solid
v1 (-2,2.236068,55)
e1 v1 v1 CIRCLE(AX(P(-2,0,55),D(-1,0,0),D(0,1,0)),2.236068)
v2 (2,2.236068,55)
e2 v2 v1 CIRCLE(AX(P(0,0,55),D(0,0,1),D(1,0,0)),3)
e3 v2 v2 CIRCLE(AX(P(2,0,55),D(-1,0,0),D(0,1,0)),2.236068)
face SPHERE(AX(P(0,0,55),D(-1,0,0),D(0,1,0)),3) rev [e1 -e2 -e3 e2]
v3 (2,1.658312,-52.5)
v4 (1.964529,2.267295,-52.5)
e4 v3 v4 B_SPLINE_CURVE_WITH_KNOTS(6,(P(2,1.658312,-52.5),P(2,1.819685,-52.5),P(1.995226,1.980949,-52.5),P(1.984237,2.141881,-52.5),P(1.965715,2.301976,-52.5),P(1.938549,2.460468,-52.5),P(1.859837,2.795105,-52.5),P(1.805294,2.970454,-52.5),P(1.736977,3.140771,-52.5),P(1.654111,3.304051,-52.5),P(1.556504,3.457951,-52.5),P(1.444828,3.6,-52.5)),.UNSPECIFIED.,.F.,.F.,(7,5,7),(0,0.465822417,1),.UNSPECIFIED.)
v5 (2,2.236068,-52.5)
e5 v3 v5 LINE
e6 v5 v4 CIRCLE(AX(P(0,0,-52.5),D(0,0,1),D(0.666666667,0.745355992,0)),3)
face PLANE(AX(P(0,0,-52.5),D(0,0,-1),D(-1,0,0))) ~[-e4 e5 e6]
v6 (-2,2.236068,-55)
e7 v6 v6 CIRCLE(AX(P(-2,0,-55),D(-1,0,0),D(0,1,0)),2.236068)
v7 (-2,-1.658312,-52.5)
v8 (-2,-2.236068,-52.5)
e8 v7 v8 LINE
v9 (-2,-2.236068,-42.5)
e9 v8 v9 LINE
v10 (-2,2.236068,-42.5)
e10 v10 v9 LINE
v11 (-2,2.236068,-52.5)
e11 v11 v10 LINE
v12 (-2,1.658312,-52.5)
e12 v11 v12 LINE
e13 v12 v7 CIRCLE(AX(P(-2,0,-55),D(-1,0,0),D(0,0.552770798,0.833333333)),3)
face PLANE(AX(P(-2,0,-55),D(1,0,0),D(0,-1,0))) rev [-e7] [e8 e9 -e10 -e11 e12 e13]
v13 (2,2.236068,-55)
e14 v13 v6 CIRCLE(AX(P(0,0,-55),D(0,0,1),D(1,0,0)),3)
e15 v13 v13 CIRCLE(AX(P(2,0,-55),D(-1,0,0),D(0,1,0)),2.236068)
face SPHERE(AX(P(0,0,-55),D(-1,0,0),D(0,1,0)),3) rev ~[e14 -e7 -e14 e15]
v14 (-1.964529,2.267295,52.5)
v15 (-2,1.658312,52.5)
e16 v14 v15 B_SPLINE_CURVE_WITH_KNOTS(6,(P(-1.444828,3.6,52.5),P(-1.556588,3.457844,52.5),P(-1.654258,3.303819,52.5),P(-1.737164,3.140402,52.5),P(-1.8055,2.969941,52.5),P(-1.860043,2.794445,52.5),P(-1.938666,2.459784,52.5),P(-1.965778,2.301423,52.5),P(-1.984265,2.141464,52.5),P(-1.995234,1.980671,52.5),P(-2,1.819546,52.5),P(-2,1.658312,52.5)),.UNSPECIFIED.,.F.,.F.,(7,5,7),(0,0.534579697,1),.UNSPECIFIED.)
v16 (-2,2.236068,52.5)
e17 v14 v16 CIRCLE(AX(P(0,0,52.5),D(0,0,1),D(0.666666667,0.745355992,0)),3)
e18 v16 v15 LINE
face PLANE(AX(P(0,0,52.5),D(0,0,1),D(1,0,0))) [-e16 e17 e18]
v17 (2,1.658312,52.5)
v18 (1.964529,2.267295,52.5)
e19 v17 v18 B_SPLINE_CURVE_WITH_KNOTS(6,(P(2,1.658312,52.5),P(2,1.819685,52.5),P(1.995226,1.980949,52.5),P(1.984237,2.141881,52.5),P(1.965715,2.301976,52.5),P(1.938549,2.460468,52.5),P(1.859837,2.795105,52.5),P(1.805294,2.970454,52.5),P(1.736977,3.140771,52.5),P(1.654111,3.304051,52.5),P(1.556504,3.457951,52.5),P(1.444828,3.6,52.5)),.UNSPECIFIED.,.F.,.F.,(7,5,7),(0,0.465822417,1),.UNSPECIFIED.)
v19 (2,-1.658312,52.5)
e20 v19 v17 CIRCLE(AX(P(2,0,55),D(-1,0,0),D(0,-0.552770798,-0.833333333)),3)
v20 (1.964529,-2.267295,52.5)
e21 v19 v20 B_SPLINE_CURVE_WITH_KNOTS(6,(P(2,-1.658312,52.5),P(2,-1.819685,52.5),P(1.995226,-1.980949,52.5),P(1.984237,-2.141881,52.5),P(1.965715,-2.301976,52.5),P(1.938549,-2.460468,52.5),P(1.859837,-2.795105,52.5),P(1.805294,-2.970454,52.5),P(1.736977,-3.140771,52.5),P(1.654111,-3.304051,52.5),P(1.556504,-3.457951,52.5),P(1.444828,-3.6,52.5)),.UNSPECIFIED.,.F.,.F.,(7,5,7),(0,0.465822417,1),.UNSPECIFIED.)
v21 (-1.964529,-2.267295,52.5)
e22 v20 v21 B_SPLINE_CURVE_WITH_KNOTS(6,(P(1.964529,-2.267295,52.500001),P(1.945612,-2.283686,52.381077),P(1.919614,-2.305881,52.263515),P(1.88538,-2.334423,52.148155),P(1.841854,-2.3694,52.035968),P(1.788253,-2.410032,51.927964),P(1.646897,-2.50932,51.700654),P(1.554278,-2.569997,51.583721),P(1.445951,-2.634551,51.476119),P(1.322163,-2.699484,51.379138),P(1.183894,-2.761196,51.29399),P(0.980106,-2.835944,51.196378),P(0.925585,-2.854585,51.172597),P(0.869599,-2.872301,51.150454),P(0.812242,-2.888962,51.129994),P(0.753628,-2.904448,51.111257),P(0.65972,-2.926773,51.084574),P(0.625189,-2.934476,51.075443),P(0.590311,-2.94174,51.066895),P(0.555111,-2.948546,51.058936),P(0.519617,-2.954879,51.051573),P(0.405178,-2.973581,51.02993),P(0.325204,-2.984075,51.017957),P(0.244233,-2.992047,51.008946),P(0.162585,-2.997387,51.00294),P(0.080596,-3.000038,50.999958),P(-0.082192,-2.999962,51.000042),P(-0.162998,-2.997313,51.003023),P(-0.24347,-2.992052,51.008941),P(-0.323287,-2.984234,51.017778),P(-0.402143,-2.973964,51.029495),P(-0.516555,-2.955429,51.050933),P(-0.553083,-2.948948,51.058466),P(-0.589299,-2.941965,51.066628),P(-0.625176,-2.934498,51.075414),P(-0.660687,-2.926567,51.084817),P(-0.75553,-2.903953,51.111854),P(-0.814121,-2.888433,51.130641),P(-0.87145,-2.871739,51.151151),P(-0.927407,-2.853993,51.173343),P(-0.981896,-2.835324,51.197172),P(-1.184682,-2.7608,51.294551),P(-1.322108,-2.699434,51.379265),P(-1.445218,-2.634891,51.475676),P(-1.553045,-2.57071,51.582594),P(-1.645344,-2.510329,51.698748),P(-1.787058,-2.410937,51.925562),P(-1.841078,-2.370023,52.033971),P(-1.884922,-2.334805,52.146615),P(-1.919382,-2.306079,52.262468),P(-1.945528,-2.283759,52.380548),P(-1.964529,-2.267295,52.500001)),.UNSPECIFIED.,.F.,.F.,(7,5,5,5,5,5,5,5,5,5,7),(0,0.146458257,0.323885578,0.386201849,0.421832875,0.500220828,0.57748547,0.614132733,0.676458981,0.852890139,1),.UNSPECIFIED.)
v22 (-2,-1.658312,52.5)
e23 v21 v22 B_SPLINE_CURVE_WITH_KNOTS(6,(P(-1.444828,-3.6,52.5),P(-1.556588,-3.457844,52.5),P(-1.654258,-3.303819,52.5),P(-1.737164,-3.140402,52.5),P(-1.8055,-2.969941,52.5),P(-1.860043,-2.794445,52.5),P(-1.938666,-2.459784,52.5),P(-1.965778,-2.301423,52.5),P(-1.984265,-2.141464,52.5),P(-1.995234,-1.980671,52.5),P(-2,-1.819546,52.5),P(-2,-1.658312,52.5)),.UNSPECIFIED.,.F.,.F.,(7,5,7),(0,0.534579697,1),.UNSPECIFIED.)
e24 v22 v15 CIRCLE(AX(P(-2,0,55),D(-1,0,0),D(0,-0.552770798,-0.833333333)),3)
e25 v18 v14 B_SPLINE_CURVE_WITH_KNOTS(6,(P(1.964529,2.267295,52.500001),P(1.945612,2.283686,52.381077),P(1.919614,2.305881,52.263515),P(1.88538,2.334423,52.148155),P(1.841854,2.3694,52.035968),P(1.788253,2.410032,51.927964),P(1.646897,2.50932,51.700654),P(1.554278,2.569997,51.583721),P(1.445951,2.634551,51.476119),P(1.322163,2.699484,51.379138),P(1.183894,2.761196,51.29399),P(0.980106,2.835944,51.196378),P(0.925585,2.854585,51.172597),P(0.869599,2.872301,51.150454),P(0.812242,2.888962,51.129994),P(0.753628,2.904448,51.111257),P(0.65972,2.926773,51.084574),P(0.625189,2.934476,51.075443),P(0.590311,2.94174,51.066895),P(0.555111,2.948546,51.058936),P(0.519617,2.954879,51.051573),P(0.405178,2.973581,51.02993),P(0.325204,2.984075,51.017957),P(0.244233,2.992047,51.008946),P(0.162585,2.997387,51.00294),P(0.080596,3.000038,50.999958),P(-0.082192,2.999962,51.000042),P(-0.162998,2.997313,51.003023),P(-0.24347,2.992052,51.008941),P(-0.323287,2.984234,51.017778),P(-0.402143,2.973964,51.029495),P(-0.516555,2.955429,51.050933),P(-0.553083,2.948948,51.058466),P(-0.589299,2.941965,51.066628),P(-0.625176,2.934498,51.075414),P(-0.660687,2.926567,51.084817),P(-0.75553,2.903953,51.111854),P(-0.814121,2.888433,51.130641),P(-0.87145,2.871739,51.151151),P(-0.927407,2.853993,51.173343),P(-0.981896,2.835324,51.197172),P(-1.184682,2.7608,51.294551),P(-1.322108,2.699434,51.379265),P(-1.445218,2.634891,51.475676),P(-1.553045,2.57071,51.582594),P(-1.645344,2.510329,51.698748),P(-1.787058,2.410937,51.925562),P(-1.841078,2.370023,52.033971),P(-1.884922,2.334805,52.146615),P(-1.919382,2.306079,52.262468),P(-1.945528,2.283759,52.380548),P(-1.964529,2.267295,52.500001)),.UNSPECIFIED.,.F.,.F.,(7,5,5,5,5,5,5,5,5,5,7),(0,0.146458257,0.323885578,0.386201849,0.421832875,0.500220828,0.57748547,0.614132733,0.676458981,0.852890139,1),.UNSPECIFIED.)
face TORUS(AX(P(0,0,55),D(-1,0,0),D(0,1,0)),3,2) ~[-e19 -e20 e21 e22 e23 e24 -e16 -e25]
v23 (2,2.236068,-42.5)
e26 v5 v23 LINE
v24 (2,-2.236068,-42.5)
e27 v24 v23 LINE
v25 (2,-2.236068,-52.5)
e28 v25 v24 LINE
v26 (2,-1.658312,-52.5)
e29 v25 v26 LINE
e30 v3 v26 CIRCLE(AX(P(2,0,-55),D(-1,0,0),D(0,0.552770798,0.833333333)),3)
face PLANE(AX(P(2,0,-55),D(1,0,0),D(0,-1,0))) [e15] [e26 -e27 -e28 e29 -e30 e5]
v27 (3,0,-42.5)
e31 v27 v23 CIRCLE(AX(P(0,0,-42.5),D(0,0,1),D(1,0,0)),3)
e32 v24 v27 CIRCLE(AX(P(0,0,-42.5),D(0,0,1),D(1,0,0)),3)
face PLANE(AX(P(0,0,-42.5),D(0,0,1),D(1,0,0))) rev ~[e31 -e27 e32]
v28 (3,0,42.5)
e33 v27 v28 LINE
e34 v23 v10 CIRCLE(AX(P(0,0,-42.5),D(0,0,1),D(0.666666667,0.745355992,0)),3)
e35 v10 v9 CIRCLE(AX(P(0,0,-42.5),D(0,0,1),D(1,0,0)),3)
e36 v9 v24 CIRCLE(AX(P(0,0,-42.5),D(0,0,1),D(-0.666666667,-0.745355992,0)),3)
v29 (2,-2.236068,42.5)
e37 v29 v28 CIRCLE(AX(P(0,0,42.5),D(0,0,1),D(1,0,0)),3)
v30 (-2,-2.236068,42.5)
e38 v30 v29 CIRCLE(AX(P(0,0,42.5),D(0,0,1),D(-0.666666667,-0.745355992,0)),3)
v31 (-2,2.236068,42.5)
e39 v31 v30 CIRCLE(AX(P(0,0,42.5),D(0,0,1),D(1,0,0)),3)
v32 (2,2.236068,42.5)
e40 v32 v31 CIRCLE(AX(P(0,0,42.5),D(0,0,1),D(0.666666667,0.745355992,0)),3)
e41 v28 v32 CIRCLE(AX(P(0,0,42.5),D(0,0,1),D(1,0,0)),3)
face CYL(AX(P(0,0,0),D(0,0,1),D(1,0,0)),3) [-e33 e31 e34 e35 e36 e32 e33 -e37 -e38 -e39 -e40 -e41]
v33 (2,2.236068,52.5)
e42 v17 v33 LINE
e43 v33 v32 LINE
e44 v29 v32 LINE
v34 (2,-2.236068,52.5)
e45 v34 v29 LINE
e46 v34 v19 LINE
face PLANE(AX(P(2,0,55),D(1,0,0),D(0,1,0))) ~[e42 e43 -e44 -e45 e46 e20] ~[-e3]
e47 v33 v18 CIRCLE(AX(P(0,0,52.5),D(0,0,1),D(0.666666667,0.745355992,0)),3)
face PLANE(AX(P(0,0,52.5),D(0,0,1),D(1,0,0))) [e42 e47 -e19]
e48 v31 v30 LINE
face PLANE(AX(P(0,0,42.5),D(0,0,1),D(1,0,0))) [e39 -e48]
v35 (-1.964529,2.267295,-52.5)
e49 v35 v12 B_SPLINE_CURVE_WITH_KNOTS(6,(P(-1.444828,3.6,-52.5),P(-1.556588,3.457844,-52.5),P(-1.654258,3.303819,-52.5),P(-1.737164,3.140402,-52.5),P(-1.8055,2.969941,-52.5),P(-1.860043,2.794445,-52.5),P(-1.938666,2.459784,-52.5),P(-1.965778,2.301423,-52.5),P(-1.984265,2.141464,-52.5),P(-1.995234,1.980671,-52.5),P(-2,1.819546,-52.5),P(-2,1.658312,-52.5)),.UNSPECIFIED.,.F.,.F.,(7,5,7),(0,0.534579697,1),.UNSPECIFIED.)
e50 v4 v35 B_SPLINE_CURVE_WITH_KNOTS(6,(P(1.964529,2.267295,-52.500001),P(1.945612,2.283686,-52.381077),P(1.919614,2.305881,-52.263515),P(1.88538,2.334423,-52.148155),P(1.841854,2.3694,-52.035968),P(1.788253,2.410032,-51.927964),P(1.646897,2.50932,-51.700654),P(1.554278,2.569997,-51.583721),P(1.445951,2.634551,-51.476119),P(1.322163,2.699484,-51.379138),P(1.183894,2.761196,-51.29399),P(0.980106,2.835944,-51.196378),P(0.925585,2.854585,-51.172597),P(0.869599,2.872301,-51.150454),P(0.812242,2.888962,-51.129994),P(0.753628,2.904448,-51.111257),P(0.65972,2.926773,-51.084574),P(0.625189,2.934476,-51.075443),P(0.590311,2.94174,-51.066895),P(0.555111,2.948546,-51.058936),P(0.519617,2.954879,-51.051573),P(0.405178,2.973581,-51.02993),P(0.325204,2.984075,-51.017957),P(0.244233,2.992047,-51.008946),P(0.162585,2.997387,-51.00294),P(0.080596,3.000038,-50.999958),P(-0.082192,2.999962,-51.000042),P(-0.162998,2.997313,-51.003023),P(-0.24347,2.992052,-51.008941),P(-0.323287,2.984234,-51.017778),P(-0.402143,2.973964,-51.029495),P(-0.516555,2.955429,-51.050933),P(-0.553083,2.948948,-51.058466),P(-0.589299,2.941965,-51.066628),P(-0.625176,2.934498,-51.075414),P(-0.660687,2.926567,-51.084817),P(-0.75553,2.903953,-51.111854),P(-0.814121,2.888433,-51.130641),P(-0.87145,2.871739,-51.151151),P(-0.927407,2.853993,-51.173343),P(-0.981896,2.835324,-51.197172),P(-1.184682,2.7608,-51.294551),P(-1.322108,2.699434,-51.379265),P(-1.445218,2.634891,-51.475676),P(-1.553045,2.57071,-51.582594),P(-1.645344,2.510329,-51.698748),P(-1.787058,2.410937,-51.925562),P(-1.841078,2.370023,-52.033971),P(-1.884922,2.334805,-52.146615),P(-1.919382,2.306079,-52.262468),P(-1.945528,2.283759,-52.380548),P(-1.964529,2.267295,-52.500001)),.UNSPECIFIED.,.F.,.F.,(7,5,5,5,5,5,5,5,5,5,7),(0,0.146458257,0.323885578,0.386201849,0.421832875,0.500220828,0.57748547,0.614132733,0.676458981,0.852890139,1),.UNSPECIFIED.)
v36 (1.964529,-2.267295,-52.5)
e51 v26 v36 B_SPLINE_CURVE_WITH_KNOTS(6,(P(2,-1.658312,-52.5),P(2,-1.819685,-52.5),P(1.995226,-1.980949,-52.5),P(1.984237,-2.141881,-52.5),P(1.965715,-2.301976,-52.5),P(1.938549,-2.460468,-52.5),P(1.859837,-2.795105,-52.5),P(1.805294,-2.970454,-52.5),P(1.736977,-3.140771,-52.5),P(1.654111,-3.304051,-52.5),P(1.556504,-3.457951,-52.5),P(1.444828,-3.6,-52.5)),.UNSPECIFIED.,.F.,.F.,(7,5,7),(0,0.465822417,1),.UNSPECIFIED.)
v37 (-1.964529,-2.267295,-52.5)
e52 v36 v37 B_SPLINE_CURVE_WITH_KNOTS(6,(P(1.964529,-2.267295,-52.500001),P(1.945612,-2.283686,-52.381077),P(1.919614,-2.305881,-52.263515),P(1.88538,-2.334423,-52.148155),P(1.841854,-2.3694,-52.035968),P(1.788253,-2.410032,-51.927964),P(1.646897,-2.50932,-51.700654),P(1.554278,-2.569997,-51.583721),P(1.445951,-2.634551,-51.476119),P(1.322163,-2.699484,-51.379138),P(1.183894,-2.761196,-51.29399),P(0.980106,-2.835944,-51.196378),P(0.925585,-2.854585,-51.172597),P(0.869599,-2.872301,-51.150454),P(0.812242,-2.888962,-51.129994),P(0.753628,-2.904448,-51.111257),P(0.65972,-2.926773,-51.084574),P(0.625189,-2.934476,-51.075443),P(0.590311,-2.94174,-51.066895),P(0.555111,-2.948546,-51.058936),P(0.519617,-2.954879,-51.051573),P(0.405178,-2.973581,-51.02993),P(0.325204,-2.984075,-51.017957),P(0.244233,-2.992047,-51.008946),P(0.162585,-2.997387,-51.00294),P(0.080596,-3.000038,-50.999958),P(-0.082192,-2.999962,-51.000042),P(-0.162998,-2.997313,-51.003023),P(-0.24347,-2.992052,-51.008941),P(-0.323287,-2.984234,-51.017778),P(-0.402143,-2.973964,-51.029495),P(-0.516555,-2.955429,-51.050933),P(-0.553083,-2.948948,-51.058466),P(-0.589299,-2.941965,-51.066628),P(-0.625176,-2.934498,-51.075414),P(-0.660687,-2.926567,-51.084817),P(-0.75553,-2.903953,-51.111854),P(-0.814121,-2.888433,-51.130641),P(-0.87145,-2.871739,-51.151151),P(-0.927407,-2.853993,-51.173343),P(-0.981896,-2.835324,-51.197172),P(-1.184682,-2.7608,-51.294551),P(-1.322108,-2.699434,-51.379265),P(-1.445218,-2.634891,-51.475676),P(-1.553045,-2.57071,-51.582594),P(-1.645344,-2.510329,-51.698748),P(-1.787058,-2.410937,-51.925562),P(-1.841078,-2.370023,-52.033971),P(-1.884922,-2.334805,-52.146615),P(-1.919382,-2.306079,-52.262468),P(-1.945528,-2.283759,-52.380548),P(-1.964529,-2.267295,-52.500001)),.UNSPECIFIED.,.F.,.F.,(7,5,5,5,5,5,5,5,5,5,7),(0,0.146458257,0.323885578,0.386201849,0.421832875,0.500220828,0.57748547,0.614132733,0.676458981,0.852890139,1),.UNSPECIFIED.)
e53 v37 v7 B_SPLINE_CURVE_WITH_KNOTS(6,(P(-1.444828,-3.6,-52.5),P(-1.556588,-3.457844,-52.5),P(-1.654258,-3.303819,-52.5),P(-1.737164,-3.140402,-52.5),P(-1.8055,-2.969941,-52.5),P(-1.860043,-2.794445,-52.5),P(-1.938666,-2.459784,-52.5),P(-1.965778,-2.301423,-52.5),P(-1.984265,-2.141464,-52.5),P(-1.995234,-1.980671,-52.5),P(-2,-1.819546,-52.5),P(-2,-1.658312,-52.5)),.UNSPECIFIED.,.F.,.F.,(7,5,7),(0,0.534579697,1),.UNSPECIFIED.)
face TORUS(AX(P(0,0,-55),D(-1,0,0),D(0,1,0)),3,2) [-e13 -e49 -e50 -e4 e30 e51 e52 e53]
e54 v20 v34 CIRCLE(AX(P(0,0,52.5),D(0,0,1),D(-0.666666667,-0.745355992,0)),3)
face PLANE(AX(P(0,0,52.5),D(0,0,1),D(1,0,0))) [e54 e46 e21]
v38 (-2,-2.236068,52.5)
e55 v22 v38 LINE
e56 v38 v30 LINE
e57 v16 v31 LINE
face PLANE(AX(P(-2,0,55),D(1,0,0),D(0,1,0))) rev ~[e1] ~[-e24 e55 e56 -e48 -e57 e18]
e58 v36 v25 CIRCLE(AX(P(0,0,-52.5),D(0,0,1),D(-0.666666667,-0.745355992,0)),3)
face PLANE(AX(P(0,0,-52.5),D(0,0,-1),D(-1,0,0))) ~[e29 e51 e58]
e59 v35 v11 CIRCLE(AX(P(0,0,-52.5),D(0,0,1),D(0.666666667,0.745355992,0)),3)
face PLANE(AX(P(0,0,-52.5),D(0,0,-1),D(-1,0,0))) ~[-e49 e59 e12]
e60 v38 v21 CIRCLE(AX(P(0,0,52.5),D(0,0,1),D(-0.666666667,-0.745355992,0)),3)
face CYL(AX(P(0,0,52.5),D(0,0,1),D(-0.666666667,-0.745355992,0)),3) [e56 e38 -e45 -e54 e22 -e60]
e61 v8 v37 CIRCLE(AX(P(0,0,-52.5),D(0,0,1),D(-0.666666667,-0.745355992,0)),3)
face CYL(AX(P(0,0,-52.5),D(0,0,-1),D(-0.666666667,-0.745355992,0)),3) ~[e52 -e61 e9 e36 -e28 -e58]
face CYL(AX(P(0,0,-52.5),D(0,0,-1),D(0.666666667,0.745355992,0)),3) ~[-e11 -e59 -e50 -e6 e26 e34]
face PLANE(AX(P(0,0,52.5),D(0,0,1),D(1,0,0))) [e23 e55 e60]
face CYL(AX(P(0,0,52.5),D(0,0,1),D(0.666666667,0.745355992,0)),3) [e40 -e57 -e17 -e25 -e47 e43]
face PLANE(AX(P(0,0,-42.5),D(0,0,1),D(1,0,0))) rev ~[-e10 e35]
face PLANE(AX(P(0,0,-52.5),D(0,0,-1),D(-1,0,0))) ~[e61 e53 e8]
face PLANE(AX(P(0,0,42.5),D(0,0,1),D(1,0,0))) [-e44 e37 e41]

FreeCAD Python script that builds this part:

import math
import FreeCAD as App
import Part
import Sketcher
Q = App.Units.Quantity

doc = App.newDocument("Part")
body = doc.addObject("PartDesign::Body", "Body")

# Sketch on XY plane
sketch1 = doc.addObject("Sketcher::SketchObject", "Sketch")
body.addObject(sketch1)
sketch1.AttachmentSupport = (doc.XY_Plane, [""])
sketch1.MapMode = "FlatFace"
sketch1.addGeometry(Part.Circle(App.Vector(0, 0, 0), App.Vector(0, 0, 1), 3), False)
sketch1.addConstraint([
    Sketcher.Constraint("Coincident", 0, 3, -1, 1),
    Sketcher.Constraint("Diameter", 0, Q("6 mm")),
])
pad1 = doc.addObject("PartDesign::Pad", "Pad")
body.addObject(pad1)
pad1.Profile = sketch1
pad1.Length = 85
pad1.Midplane = True

# Sketch on XY plane
sketch2 = doc.addObject("Sketcher::SketchObject", "Sketch001")
body.addObject(sketch2)
sketch2.AttachmentSupport = (doc.XY_Plane, [""])
sketch2.MapMode = "FlatFace"
sketch2.AttachmentOffset = App.Placement(App.Vector(0, 0, 52.5), App.Rotation())
sketch2.addGeometry([
    Part.ArcOfCircle(Part.Circle(App.Vector(0, 0, 0), App.Vector(0, 0, 1), 3), math.radians(48), math.radians(132)),
    Part.LineSegment(App.Vector(-2, 2.2, 0), App.Vector(-2, -2.2, 0)),
    Part.ArcOfCircle(Part.Circle(App.Vector(0, 0, 0), App.Vector(0, 0, 1), 3), math.radians(-132), math.radians(-48)),
    Part.LineSegment(App.Vector(2, -2.2, 0), App.Vector(2, 2.2, 0)),
], False)
sketch2.addConstraint([
    Sketcher.Constraint("Coincident", 0, 2, 1, 1),
    Sketcher.Constraint("Coincident", 1, 2, 2, 1),
    Sketcher.Constraint("Coincident", 2, 2, 3, 1),
    Sketcher.Constraint("Coincident", 3, 2, 0, 1),
    Sketcher.Constraint("Vertical", 1),
    Sketcher.Constraint("Vertical", 3),
    Sketcher.Constraint("Coincident", 0, 3, -1, 1),
    Sketcher.Constraint("Coincident", 2, 3, -1, 1),
    Sketcher.Constraint("Equal", 0, 2),
    Sketcher.Constraint("Horizontal", 1, 2, 2, 2),
    Sketcher.Constraint("Radius", 0, Q("3 mm")),
    Sketcher.Constraint("DistanceX", 0, 2, -1, 1, Q("2 mm")),
])
pad2 = doc.addObject("PartDesign::Pad", "Pad001")
body.addObject(pad2)
pad2.Profile = sketch2
pad2.Length = 10
pad2.Reversed = True

# Sketch on XY plane
sketch3 = doc.addObject("Sketcher::SketchObject", "Sketch002")
body.addObject(sketch3)
sketch3.AttachmentSupport = (doc.XY_Plane, [""])
sketch3.MapMode = "FlatFace"
sketch3.AttachmentOffset = App.Placement(App.Vector(0, 0, 55), App.Rotation())
sketch3.addGeometry([
    Part.LineSegment(App.Vector(-2, 3, 0), App.Vector(-2, 0, 0)),
    Part.LineSegment(App.Vector(-2, 0, 0), App.Vector(2, 0, 0)),
    Part.LineSegment(App.Vector(2, 0, 0), App.Vector(2, 3, 0)),
    Part.ArcOfCircle(Part.Circle(App.Vector(0, 3, 0), App.Vector(0, 0, 1), 2), math.radians(0), math.radians(180)),
], False)
sketch3.addConstraint([
    Sketcher.Constraint("Coincident", 0, 2, 1, 1),
    Sketcher.Constraint("Coincident", 1, 2, 2, 1),
    Sketcher.Constraint("Tangent", 2, 2, 3, 1),
    Sketcher.Constraint("Tangent", 3, 2, 0, 1),
    Sketcher.Constraint("Vertical", 0),
    Sketcher.Constraint("Horizontal", 1),
    Sketcher.Constraint("Vertical", 2),
    Sketcher.Constraint("Symmetric", 0, 2, 1, 2, -1, 1),
    Sketcher.Constraint("Radius", 3, Q("2 mm")),
    Sketcher.Constraint("DistanceY", 0, 2, 0, 1, Q("3 mm")),
])
revolution = doc.addObject("PartDesign::Revolution", "Revolution")
body.addObject(revolution)
revolution.Profile = sketch3
revolution.ReferenceAxis = (sketch3, ["H_Axis"])
revolution.Angle = 360

# Sketch on XY plane
sketch4 = doc.addObject("Sketcher::SketchObject", "Sketch003")
body.addObject(sketch4)
sketch4.AttachmentSupport = (doc.XY_Plane, [""])
sketch4.MapMode = "FlatFace"
sketch4.AttachmentOffset = App.Placement(App.Vector(0, 0, 55), App.Rotation())
sketch4.addGeometry([
    Part.LineSegment(App.Vector(-3, 0, 0), App.Vector(3, 0, 0)),
    Part.ArcOfCircle(Part.Circle(App.Vector(0, 0, 0), App.Vector(0, 0, 1), 3), math.radians(0), math.radians(180)),
], False)
sketch4.addConstraint([
    Sketcher.Constraint("Coincident", 0, 1, 1, 2),
    Sketcher.Constraint("Coincident", 1, 1, 0, 2),
    Sketcher.Constraint("Horizontal", 0),
    Sketcher.Constraint("Coincident", 1, 3, -1, 1),
    Sketcher.Constraint("PointOnObject", 0, 1, -1),
    Sketcher.Constraint("Radius", 1, Q("3 mm")),
])
groove = doc.addObject("PartDesign::Groove", "Groove")
body.addObject(groove)
groove.Profile = sketch4
groove.ReferenceAxis = (sketch4, ["H_Axis"])
groove.Angle = 360
doc.recompute()

mirrored = doc.addObject("PartDesign::Mirrored", "Mirrored")
body.addObject(mirrored)
mirrored.Originals = [pad2, revolution, groove]
mirrored.MirrorPlane = (doc.XY_Plane, [""])
body.Tip = mirrored

doc.recompute()
